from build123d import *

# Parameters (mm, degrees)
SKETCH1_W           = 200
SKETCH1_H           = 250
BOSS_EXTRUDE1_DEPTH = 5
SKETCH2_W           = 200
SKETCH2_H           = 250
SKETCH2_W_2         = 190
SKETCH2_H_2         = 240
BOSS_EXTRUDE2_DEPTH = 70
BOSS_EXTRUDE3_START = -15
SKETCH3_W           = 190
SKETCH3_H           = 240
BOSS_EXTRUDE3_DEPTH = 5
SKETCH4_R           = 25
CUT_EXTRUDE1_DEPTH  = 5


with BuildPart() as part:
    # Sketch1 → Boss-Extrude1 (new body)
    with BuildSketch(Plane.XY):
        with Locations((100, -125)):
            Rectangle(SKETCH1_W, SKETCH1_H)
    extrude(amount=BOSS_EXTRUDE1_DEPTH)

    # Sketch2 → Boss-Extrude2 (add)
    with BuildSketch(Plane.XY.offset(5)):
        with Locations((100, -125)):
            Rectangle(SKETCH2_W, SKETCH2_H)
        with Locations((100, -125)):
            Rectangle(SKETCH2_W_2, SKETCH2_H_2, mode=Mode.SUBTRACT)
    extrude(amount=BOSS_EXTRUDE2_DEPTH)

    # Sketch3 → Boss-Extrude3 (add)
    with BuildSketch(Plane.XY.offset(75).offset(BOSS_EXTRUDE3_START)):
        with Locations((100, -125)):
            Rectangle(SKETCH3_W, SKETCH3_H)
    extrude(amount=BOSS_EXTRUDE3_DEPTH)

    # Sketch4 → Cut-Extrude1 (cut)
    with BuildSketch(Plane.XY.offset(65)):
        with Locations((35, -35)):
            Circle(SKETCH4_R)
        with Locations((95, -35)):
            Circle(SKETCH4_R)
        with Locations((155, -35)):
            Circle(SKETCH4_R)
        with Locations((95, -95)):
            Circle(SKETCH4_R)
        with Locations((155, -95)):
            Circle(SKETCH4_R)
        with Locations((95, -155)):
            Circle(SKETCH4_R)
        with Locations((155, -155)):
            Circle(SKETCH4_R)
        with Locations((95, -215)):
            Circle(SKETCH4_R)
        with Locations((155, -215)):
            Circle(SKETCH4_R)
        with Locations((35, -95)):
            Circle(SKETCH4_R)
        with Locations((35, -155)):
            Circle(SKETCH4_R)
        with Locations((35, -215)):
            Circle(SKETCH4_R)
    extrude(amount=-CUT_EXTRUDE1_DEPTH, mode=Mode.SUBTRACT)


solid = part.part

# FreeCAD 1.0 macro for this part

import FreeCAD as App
import Part
import Sketcher
Q = App.Units.Quantity


def add_polygon(sketch, points):
    """Adds a closed chain of lines whose ends are joined by coincident constraints."""
    first, n = sketch.GeometryCount, len(points)
    for a, b in zip(points, points[1:] + points[:1]):
        sketch.addGeometry(Part.LineSegment(App.Vector(*a, 0), App.Vector(*b, 0)), False)
    for i in range(n):
        sketch.addConstraint(Sketcher.Constraint("Coincident", first + i, 2, first + (i + 1) % n, 1))

doc = App.newDocument("Part")
body = doc.addObject("PartDesign::Body", "Body")

sketch1 = body.newObject("Sketcher::SketchObject", "Sketch")
sketch1.AttachmentSupport = (doc.getObject("XY_Plane"), [""])
sketch1.MapMode = "FlatFace"
add_polygon(sketch1, [(0, 0), (0, -250), (200, -250), (200, 0)])
sketch1.addConstraint([
    Sketcher.Constraint("Vertical", 0),
    Sketcher.Constraint("Horizontal", 1),
    Sketcher.Constraint("Vertical", 2),
    Sketcher.Constraint("Horizontal", 3),
    Sketcher.Constraint("Coincident", 3, 2, -1, 1),
    Sketcher.Constraint("DistanceX", 1, 1, 1, 2, Q("200 mm")),
    Sketcher.Constraint("DistanceY", 0, 2, 0, 1, Q("250 mm")),
])
pad1 = body.newObject("PartDesign::Pad", "Pad")
pad1.Profile = sketch1
pad1.Length = 5

sketch2 = body.newObject("Sketcher::SketchObject", "Sketch001")
sketch2.AttachmentSupport = (doc.getObject("XY_Plane"), [""])
sketch2.MapMode = "FlatFace"
sketch2.AttachmentOffset = App.Placement(App.Vector(0, 0, 5), App.Rotation())
add_polygon(sketch2, [(0, 0), (0, -250), (200, -250), (200, 0)])
add_polygon(sketch2, [(195, -245), (5, -245), (5, -5), (195, -5)])
sketch2.addConstraint([
    Sketcher.Constraint("Vertical", 0),
    Sketcher.Constraint("Horizontal", 1),
    Sketcher.Constraint("Vertical", 2),
    Sketcher.Constraint("Horizontal", 3),
    Sketcher.Constraint("Horizontal", 4),
    Sketcher.Constraint("Vertical", 5),
    Sketcher.Constraint("Horizontal", 6),
    Sketcher.Constraint("Vertical", 7),
    Sketcher.Constraint("Coincident", 3, 2, -1, 1),
    Sketcher.Constraint("DistanceX", 1, 1, 1, 2, Q("200 mm")),
    Sketcher.Constraint("DistanceX", 4, 2, 4, 1, Q("190 mm")),
    Sketcher.Constraint("DistanceY", 0, 2, 0, 1, Q("250 mm")),
    Sketcher.Constraint("DistanceY", 5, 1, 5, 2, Q("240 mm")),
    Sketcher.Constraint("DistanceX", -1, 1, 4, 2, Q("5 mm")),
    Sketcher.Constraint("DistanceY", 4, 2, -1, 1, Q("245 mm")),
])
pad2 = body.newObject("PartDesign::Pad", "Pad001")
pad2.Profile = sketch2
pad2.Length = 70

sketch3 = body.newObject("Sketcher::SketchObject", "Sketch002")
sketch3.AttachmentSupport = (doc.getObject("XY_Plane"), [""])
sketch3.MapMode = "FlatFace"
sketch3.AttachmentOffset = App.Placement(App.Vector(0, 0, 60), App.Rotation())
add_polygon(sketch3, [(5, -5), (5, -245), (195, -245), (195, -5)])
sketch3.addConstraint([
    Sketcher.Constraint("Vertical", 0),
    Sketcher.Constraint("Horizontal", 1),
    Sketcher.Constraint("Vertical", 2),
    Sketcher.Constraint("Horizontal", 3),
    Sketcher.Constraint("DistanceX", 1, 1, 1, 2, Q("190 mm")),
    Sketcher.Constraint("DistanceY", 0, 2, 0, 1, Q("240 mm")),
    Sketcher.Constraint("DistanceX", -1, 1, 0, 2, Q("5 mm")),
    Sketcher.Constraint("DistanceY", 0, 2, -1, 1, Q("245 mm")),
])
pad3 = body.newObject("PartDesign::Pad", "Pad002")
pad3.Profile = sketch3
pad3.Length = 5

sketch4 = body.newObject("Sketcher::SketchObject", "Sketch003")
sketch4.AttachmentSupport = (doc.getObject("XY_Plane"), [""])
sketch4.MapMode = "FlatFace"
sketch4.AttachmentOffset = App.Placement(App.Vector(0, 0, 65), App.Rotation())
sketch4.addGeometry([
    Part.Circle(App.Vector(35, -35, 0), App.Vector(0, 0, 1), 25),
    Part.Circle(App.Vector(95, -35, 0), App.Vector(0, 0, 1), 25),
    Part.Circle(App.Vector(155, -35, 0), App.Vector(0, 0, 1), 25),
    Part.Circle(App.Vector(95, -95, 0), App.Vector(0, 0, 1), 25),
    Part.Circle(App.Vector(155, -95, 0), App.Vector(0, 0, 1), 25),
    Part.Circle(App.Vector(95, -155, 0), App.Vector(0, 0, 1), 25),
    Part.Circle(App.Vector(155, -155, 0), App.Vector(0, 0, 1), 25),
    Part.Circle(App.Vector(95, -215, 0), App.Vector(0, 0, 1), 25),
    Part.Circle(App.Vector(155, -215, 0), App.Vector(0, 0, 1), 25),
    Part.Circle(App.Vector(35, -95, 0), App.Vector(0, 0, 1), 25),
    Part.Circle(App.Vector(35, -155, 0), App.Vector(0, 0, 1), 25),
    Part.Circle(App.Vector(35, -215, 0), App.Vector(0, 0, 1), 25),
], False)
sketch4.addConstraint([
    Sketcher.Constraint("Equal", 0, 1),
    Sketcher.Constraint("Equal", 1, 2),
    Sketcher.Constraint("Equal", 2, 3),
    Sketcher.Constraint("Equal", 3, 4),
    Sketcher.Constraint("Equal", 4, 5),
    Sketcher.Constraint("Equal", 5, 6),
    Sketcher.Constraint("Equal", 6, 7),
    Sketcher.Constraint("Equal", 7, 8),
    Sketcher.Constraint("Equal", 8, 9),
    Sketcher.Constraint("Equal", 9, 10),
    Sketcher.Constraint("Equal", 10, 11),
    Sketcher.Constraint("Horizontal", 0, 3, 1, 3),
    Sketcher.Constraint("Horizontal", 1, 3, 2, 3),
    Sketcher.Constraint("Horizontal", 3, 3, 4, 3),
    Sketcher.Constraint("Horizontal", 5, 3, 6, 3),
    Sketcher.Constraint("Horizontal", 7, 3, 8, 3),
    Sketcher.Constraint("Horizontal", 4, 3, 9, 3),
    Sketcher.Constraint("Horizontal", 6, 3, 10, 3),
    Sketcher.Constraint("Horizontal", 8, 3, 11, 3),
    Sketcher.Constraint("Vertical", 1, 3, 3, 3),
    Sketcher.Constraint("Vertical", 2, 3, 4, 3),
    Sketcher.Constraint("Vertical", 3, 3, 5, 3),
    Sketcher.Constraint("Vertical", 4, 3, 6, 3),
    Sketcher.Constraint("Vertical", 5, 3, 7, 3),
    Sketcher.Constraint("Vertical", 6, 3, 8, 3),
    Sketcher.Constraint("Vertical", 0, 3, 9, 3),
    Sketcher.Constraint("Vertical", 9, 3, 10, 3),
    Sketcher.Constraint("Vertical", 10, 3, 11, 3),
    Sketcher.Constraint("Diameter", 0, Q("50 mm")),
    Sketcher.Constraint("DistanceX", -1, 1, 0, 3, Q("35 mm")),
    Sketcher.Constraint("DistanceY", 0, 3, -1, 1, Q("35 mm")),
    Sketcher.Constraint("DistanceX", -1, 1, 1, 3, Q("95 mm")),
    Sketcher.Constraint("DistanceX", -1, 1, 2, 3, Q("155 mm")),
    Sketcher.Constraint("DistanceY", 3, 3, -1, 1, Q("95 mm")),
    Sketcher.Constraint("DistanceY", 5, 3, -1, 1, Q("155 mm")),
    Sketcher.Constraint("DistanceY", 7, 3, -1, 1, Q("215 mm")),
])
pocket1 = body.newObject("PartDesign::Pocket", "Pocket")
pocket1.Profile = sketch4
pocket1.Length = 5

doc.recompute()
